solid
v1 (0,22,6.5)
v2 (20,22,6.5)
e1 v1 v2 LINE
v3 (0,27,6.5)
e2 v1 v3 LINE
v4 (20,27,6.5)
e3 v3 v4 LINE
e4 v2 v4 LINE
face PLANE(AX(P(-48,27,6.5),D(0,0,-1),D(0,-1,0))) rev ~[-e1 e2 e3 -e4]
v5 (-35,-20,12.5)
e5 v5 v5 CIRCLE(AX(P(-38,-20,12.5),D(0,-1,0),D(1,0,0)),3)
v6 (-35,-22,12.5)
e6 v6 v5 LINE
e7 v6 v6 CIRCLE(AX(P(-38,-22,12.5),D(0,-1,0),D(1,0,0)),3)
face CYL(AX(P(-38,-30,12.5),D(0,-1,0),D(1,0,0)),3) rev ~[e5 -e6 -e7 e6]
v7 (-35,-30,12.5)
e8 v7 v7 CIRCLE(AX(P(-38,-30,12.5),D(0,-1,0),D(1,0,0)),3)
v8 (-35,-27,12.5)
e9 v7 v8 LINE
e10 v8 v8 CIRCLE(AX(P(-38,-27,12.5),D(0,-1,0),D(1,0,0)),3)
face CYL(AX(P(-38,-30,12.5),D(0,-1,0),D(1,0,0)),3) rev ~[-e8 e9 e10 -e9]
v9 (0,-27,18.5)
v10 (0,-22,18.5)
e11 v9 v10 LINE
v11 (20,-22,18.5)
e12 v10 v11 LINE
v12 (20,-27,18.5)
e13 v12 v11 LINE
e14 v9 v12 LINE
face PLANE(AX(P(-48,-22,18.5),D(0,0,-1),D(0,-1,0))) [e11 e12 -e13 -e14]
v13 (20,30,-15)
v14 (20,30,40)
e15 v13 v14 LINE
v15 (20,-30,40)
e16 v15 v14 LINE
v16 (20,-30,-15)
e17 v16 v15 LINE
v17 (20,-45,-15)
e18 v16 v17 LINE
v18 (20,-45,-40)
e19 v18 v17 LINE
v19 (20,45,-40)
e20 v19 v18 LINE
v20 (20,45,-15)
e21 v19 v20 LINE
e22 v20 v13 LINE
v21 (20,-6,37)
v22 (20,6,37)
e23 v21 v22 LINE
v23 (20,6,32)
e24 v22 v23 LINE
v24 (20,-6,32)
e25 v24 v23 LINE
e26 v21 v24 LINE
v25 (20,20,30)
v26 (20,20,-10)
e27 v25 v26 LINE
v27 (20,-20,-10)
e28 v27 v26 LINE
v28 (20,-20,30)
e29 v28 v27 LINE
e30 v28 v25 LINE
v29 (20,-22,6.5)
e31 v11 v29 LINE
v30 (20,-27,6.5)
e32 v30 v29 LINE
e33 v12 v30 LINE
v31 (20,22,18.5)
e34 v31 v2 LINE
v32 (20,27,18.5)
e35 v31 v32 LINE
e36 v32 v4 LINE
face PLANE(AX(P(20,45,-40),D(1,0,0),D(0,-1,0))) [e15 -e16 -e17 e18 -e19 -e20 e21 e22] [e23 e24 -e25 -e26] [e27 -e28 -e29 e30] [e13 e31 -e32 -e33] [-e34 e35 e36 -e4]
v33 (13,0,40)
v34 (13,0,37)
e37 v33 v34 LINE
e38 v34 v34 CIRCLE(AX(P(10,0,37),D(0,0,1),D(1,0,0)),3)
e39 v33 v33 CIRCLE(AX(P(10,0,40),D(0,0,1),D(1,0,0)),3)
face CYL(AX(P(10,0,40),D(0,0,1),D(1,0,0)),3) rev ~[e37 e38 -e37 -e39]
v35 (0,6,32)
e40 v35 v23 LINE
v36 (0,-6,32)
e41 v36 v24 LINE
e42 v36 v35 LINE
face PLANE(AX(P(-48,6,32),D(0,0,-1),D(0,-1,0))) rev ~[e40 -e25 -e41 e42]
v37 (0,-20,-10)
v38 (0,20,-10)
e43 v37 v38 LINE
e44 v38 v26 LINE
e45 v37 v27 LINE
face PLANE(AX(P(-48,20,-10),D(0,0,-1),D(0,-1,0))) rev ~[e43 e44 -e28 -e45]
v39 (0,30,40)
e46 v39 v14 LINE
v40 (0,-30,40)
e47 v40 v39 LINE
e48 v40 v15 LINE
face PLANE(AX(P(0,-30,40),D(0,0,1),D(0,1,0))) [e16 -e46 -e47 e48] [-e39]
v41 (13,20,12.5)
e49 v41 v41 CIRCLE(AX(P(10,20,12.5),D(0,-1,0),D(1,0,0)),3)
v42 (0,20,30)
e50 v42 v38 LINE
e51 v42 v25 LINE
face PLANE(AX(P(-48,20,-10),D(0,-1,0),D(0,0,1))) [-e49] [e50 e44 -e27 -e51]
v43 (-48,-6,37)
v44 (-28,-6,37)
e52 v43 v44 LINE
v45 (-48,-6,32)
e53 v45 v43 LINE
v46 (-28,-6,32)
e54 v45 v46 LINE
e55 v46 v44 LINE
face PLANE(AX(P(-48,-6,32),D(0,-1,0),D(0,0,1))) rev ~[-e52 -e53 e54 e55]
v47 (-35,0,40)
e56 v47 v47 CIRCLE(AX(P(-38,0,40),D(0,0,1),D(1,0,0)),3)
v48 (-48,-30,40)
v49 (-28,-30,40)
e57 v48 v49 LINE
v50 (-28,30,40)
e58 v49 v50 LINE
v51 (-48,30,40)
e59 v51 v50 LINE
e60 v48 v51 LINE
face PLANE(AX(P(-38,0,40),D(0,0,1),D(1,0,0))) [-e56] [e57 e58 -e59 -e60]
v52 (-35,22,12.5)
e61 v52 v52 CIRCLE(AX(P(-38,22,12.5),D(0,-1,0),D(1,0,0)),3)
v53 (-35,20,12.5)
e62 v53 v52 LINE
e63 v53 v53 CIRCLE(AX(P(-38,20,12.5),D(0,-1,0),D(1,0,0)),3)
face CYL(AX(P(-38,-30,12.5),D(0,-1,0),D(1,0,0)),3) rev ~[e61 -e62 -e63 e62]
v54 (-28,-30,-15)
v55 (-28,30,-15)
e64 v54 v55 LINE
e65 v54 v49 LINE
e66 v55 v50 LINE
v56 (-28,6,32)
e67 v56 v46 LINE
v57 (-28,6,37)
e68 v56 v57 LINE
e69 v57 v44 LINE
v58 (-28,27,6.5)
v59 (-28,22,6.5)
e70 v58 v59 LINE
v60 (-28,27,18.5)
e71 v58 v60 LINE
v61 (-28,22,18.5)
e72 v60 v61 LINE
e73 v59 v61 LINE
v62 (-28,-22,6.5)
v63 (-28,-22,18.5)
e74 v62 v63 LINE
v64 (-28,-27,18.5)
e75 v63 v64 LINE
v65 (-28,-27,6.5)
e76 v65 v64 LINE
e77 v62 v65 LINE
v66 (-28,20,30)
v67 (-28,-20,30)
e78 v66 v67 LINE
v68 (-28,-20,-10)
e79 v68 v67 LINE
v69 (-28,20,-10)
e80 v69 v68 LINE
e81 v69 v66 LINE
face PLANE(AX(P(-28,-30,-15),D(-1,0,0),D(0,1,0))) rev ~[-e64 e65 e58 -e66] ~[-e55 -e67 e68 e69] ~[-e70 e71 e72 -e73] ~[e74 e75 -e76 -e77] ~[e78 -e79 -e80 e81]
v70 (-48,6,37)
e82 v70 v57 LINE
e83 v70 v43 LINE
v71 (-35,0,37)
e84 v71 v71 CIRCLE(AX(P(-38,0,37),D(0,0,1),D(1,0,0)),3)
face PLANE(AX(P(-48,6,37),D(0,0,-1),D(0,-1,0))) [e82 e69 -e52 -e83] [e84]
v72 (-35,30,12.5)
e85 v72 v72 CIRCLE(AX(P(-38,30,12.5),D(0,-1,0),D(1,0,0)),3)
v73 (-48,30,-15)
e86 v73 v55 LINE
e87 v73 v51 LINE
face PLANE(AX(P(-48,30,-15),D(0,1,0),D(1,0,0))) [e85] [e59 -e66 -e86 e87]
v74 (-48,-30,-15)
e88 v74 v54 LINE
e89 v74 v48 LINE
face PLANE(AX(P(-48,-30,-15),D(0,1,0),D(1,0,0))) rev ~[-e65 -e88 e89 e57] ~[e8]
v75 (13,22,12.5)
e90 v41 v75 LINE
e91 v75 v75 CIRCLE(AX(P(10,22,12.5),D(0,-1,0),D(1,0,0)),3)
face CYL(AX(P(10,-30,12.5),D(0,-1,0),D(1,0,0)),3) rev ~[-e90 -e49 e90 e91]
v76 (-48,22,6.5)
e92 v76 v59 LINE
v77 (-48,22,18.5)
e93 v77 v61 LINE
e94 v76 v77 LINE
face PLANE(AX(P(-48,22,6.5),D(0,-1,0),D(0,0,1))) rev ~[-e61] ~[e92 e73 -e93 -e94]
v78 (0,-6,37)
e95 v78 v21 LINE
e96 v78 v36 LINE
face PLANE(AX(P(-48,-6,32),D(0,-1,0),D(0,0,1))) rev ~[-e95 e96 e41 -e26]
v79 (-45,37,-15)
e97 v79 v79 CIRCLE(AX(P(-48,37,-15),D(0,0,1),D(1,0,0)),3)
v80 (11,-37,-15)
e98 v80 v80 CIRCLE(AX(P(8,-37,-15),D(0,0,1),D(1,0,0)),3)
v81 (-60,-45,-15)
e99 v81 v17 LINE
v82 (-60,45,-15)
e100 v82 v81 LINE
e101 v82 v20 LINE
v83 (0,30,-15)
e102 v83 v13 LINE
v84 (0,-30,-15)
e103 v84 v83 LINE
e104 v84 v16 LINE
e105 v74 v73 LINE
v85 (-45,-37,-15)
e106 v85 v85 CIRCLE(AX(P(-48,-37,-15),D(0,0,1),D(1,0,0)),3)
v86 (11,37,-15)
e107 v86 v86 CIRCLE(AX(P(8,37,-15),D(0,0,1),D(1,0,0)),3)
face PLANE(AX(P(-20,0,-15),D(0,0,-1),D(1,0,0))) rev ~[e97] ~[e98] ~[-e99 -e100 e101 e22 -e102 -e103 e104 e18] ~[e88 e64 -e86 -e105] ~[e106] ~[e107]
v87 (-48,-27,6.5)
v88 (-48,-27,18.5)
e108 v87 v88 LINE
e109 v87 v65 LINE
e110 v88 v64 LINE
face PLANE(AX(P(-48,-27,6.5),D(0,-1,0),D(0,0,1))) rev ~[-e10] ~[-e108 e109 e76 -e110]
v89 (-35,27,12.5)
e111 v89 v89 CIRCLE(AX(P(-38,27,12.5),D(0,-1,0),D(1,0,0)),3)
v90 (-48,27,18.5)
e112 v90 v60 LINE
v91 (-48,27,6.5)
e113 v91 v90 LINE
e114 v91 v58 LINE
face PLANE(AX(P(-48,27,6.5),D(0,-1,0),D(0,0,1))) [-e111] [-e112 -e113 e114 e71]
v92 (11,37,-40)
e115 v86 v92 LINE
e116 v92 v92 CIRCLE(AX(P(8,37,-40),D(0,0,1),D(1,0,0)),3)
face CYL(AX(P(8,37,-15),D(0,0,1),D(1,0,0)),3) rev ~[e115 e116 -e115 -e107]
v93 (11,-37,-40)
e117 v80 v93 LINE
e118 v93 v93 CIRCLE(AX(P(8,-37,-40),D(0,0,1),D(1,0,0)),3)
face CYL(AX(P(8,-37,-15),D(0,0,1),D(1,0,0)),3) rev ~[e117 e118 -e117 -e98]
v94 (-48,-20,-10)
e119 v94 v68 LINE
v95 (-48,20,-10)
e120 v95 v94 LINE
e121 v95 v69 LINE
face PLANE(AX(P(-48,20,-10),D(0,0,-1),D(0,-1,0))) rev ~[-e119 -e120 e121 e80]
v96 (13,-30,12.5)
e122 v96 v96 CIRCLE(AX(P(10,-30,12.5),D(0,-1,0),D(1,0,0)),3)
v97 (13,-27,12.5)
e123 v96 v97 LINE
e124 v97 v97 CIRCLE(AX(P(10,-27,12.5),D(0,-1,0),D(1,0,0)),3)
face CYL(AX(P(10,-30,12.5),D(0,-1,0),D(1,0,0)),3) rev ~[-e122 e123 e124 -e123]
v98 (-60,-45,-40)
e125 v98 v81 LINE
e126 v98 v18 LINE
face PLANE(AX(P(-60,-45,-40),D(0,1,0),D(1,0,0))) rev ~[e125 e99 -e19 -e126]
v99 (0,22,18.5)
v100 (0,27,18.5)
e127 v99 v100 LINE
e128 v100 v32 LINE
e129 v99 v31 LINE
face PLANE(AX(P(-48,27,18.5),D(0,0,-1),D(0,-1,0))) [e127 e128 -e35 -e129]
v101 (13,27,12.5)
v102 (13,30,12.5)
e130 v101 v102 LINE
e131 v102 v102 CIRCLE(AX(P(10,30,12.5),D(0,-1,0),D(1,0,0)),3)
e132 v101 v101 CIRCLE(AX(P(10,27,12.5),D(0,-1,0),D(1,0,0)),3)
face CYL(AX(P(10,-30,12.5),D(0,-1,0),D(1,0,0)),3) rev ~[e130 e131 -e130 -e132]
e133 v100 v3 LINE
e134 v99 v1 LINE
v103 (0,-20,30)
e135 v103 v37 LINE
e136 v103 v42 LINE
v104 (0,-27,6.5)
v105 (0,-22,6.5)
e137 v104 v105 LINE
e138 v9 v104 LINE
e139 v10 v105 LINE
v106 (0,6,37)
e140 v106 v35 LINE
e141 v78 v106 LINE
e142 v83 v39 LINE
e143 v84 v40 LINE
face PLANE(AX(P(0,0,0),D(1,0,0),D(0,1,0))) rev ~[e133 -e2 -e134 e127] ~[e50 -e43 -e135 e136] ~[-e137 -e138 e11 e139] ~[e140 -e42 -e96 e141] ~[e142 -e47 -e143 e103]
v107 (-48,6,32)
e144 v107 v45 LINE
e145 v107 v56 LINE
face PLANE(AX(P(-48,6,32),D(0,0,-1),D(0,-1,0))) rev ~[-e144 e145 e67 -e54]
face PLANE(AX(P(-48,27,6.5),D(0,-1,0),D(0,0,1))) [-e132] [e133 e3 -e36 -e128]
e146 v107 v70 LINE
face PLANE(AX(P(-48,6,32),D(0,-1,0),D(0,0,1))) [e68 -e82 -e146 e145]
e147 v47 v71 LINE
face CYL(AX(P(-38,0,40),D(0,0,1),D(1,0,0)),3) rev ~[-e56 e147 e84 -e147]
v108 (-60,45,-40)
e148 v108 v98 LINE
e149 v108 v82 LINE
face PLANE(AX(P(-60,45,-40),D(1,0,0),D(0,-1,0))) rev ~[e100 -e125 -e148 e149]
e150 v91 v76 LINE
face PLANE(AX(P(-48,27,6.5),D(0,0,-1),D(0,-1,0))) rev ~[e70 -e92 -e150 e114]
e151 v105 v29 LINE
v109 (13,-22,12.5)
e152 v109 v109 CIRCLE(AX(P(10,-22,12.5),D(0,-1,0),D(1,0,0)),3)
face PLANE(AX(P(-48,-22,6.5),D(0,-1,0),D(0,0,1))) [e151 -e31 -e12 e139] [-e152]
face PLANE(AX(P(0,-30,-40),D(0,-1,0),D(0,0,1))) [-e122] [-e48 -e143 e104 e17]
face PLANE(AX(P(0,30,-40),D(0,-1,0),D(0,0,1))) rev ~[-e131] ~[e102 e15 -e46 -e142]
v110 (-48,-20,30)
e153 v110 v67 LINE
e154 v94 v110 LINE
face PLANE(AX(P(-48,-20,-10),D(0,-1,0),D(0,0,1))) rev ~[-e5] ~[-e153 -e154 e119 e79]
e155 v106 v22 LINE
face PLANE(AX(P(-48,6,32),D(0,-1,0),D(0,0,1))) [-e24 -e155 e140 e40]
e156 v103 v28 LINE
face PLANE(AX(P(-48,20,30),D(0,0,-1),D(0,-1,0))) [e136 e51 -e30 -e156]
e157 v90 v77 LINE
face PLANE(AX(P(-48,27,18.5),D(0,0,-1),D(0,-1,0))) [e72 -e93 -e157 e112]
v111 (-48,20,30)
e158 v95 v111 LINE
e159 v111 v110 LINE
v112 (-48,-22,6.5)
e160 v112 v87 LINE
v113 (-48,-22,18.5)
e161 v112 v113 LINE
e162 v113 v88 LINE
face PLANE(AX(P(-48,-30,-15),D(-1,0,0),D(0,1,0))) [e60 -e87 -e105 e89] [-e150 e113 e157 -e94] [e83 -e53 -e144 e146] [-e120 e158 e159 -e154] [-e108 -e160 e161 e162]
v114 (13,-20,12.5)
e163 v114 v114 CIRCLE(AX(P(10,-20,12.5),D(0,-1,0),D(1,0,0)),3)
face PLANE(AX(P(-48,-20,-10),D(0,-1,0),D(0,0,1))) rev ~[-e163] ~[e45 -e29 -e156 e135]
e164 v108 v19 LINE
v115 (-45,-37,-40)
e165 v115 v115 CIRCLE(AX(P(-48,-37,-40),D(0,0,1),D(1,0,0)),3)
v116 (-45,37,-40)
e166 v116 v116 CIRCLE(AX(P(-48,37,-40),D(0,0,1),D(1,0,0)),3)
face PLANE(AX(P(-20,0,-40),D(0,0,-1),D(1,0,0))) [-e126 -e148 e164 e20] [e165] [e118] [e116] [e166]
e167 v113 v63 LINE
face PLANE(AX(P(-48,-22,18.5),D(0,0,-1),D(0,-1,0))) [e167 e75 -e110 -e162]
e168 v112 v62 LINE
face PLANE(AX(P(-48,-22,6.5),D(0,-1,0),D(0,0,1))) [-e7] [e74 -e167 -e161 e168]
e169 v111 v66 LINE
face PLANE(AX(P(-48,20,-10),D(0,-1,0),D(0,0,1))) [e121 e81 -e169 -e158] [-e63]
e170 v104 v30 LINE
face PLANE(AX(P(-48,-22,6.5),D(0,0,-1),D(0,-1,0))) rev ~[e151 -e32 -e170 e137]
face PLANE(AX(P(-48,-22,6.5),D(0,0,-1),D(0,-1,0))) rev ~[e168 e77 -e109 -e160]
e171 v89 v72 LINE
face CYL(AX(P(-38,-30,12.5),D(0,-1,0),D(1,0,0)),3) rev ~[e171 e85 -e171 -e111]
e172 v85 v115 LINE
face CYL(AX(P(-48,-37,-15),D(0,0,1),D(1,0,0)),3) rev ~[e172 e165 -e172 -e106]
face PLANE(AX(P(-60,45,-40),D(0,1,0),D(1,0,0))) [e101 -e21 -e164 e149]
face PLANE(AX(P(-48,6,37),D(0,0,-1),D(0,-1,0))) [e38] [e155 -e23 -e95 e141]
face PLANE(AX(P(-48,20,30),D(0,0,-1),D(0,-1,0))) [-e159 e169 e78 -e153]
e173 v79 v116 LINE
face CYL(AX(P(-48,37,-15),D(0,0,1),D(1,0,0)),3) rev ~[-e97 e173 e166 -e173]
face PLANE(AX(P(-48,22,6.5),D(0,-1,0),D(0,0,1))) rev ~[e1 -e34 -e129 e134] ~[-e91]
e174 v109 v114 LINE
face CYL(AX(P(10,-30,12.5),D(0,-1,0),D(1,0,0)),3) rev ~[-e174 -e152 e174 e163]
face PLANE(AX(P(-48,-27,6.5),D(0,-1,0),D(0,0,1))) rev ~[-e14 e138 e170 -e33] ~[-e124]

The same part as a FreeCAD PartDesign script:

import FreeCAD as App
import Part
import Sketcher

doc = App.newDocument("Part")
body = doc.addObject("PartDesign::Body", "Body")

sketch1 = body.newObject("Sketcher::SketchObject", "Sketch")
sketch1.AttachmentSupport = (doc.getObject("YZ_Plane"), [""])
sketch1.MapMode = "FlatFace"
sketch1.addGeometry([
    Part.LineSegment(App.Vector(-30, 40, 0), App.Vector(-30, -40, 0)),
    Part.LineSegment(App.Vector(-30, -40, 0), App.Vector(30, -40, 0)),
    Part.LineSegment(App.Vector(30, -40, 0), App.Vector(30, 40, 0)),
    Part.LineSegment(App.Vector(30, 40, 0), App.Vector(-30, 40, 0)),
], False)
sketch1.addConstraint([
    Sketcher.Constraint("Coincident", 0, 2, 1, 1),
    Sketcher.Constraint("Coincident", 1, 2, 2, 1),
    Sketcher.Constraint("Coincident", 2, 2, 3, 1),
    Sketcher.Constraint("Coincident", 3, 2, 0, 1),
    Sketcher.Constraint("Vertical", 0),
    Sketcher.Constraint("Horizontal", 1),
    Sketcher.Constraint("Vertical", 2),
    Sketcher.Constraint("Horizontal", 3),
    Sketcher.Constraint("Symmetric", 0, 2, 2, 2, -1, 1),
    Sketcher.Constraint("DistanceX", 1, 1, 1, 2, 60.0),
    Sketcher.Constraint("DistanceY", 0, 2, 0, 1, 80.0),
])
pad1 = body.newObject("PartDesign::Pad", "Pad")
pad1.Profile = sketch1
pad1.Length = 20

sketch2 = body.newObject("Sketcher::SketchObject", "Sketch001")
sketch2.AttachmentSupport = (doc.getObject("XY_Plane"), [""])
sketch2.MapMode = "FlatFace"
sketch2.AttachmentOffset = App.Placement(App.Vector(0, 0, -40), App.Rotation())
sketch2.addGeometry([
    Part.LineSegment(App.Vector(-60, -45, 0), App.Vector(-60, 45, 0)),
    Part.LineSegment(App.Vector(-60, 45, 0), App.Vector(20, 45, 0)),
    Part.LineSegment(App.Vector(20, 45, 0), App.Vector(20, -45, 0)),
    Part.LineSegment(App.Vector(20, -45, 0), App.Vector(-60, -45, 0)),
], False)
sketch2.addConstraint([
    Sketcher.Constraint("Coincident", 0, 2, 1, 1),
    Sketcher.Constraint("Coincident", 1, 2, 2, 1),
    Sketcher.Constraint("Coincident", 2, 2, 3, 1),
    Sketcher.Constraint("Coincident", 3, 2, 0, 1),
    Sketcher.Constraint("Vertical", 0),
    Sketcher.Constraint("Horizontal", 1),
    Sketcher.Constraint("Vertical", 2),
    Sketcher.Constraint("Horizontal", 3),
    Sketcher.Constraint("DistanceX", 1, 1, 1, 2, 80.0),
    Sketcher.Constraint("DistanceY", 0, 1, 0, 2, 90.0),
    Sketcher.Constraint("DistanceX", 0, 2, -1, 1, 60.0),
    Sketcher.Constraint("DistanceY", -1, 1, 0, 2, 45.0),
])
pad2 = body.newObject("PartDesign::Pad", "Pad001")
pad2.Profile = sketch2
pad2.Length = 25

sketch3 = body.newObject("Sketcher::SketchObject", "Sketch002")
sketch3.AttachmentSupport = (doc.getObject("XY_Plane"), [""])
sketch3.MapMode = "FlatFace"
sketch3.AttachmentOffset = App.Placement(App.Vector(0, 0, -15), App.Rotation())
sketch3.addGeometry([
    Part.Circle(App.Vector(-48, 37, 0), App.Vector(0, 0, 1), 3),
    Part.Circle(App.Vector(-48, -37, 0), App.Vector(0, 0, 1), 3),
    Part.Circle(App.Vector(8, -37, 0), App.Vector(0, 0, 1), 3),
    Part.Circle(App.Vector(8, 37, 0), App.Vector(0, 0, 1), 3),
], False)
sketch3.addConstraint([
    Sketcher.Constraint("Equal", 0, 1),
    Sketcher.Constraint("Equal", 1, 2),
    Sketcher.Constraint("Equal", 2, 3),
    Sketcher.Constraint("Symmetric", 0, 3, 1, 3, -1),
    Sketcher.Constraint("Symmetric", 2, 3, 3, 3, -1),
    Sketcher.Constraint("Horizontal", 1, 3, 2, 3),
    Sketcher.Constraint("Diameter", 0, 6.0),
    Sketcher.Constraint("DistanceX", 0, 3, -1, 1, 48.0),
    Sketcher.Constraint("DistanceY", -1, 1, 0, 3, 37.0),
    Sketcher.Constraint("DistanceX", -1, 1, 2, 3, 8.0),
])
pocket1 = body.newObject("PartDesign::Pocket", "Pocket")
pocket1.Profile = sketch3
pocket1.Type = "ThroughAll"

sketch4 = body.newObject("Sketcher::SketchObject", "Sketch003")
sketch4.AttachmentSupport = (doc.getObject("XY_Plane"), [""])
sketch4.MapMode = "FlatFace"
sketch4.AttachmentOffset = App.Placement(App.Vector(0, 0, -15), App.Rotation())
sketch4.addGeometry([
    Part.LineSegment(App.Vector(-48, 30, 0), App.Vector(-48, -30, 0)),
    Part.LineSegment(App.Vector(-48, -30, 0), App.Vector(-28, -30, 0)),
    Part.LineSegment(App.Vector(-28, -30, 0), App.Vector(-28, 30, 0)),
    Part.LineSegment(App.Vector(-28, 30, 0), App.Vector(-48, 30, 0)),
], False)
sketch4.addConstraint([
    Sketcher.Constraint("Coincident", 0, 2, 1, 1),
    Sketcher.Constraint("Coincident", 1, 2, 2, 1),
    Sketcher.Constraint("Coincident", 2, 2, 3, 1),
    Sketcher.Constraint("Coincident", 3, 2, 0, 1),
    Sketcher.Constraint("Vertical", 0),
    Sketcher.Constraint("Horizontal", 1),
    Sketcher.Constraint("Vertical", 2),
    Sketcher.Constraint("Horizontal", 3),
    Sketcher.Constraint("DistanceX", 1, 1, 1, 2, 20.0),
    Sketcher.Constraint("DistanceY", 0, 2, 0, 1, 60.0),
    Sketcher.Constraint("DistanceX", 0, 2, -1, 1, 48.0),
    Sketcher.Constraint("DistanceY", 0, 2, -1, 1, 30.0),
])
pad3 = body.newObject("PartDesign::Pad", "Pad002")
pad3.Profile = sketch4
pad3.Length = 55

sketch5 = body.newObject("Sketcher::SketchObject", "Sketch004")
sketch5.AttachmentSupport = (doc.getObject("YZ_Plane"), [""])
sketch5.MapMode = "FlatFace"
sketch5.AttachmentOffset = App.Placement(App.Vector(0, 0, -48), App.Rotation())
sketch5.addGeometry([
    Part.LineSegment(App.Vector(20, 30, 0), App.Vector(20, -10, 0)),
    Part.LineSegment(App.Vector(20, -10, 0), App.Vector(-20, -10, 0)),
    Part.LineSegment(App.Vector(-20, -10, 0), App.Vector(-20, 30, 0)),
    Part.LineSegment(App.Vector(-20, 30, 0), App.Vector(20, 30, 0)),
    Part.LineSegment(App.Vector(27, 18, 0), App.Vector(27, 6, 0)),
    Part.LineSegment(App.Vector(27, 6, 0), App.Vector(22, 6, 0)),
    Part.LineSegment(App.Vector(22, 6, 0), App.Vector(22, 18, 0)),
    Part.LineSegment(App.Vector(22, 18, 0), App.Vector(27, 18, 0)),
    Part.LineSegment(App.Vector(6, 37, 0), App.Vector(6, 32, 0)),
    Part.LineSegment(App.Vector(6, 32, 0), App.Vector(-6, 32, 0)),
    Part.LineSegment(App.Vector(-6, 32, 0), App.Vector(-6, 37, 0)),
    Part.LineSegment(App.Vector(-6, 37, 0), App.Vector(6, 37, 0)),
    Part.LineSegment(App.Vector(-22, 18, 0), App.Vector(-22, 6, 0)),
    Part.LineSegment(App.Vector(-22, 6, 0), App.Vector(-27, 6, 0)),
    Part.LineSegment(App.Vector(-27, 6, 0), App.Vector(-27, 18, 0)),
    Part.LineSegment(App.Vector(-27, 18, 0), App.Vector(-22, 18, 0)),
], False)
sketch5.addConstraint([
    Sketcher.Constraint("Coincident", 0, 2, 1, 1),
    Sketcher.Constraint("Coincident", 1, 2, 2, 1),
    Sketcher.Constraint("Coincident", 2, 2, 3, 1),
    Sketcher.Constraint("Coincident", 3, 2, 0, 1),
    Sketcher.Constraint("Coincident", 4, 2, 5, 1),
    Sketcher.Constraint("Coincident", 5, 2, 6, 1),
    Sketcher.Constraint("Coincident", 6, 2, 7, 1),
    Sketcher.Constraint("Coincident", 7, 2, 4, 1),
    Sketcher.Constraint("Coincident", 8, 2, 9, 1),
    Sketcher.Constraint("Coincident", 9, 2, 10, 1),
    Sketcher.Constraint("Coincident", 10, 2, 11, 1),
    Sketcher.Constraint("Coincident", 11, 2, 8, 1),
    Sketcher.Constraint("Coincident", 12, 2, 13, 1),
    Sketcher.Constraint("Coincident", 13, 2, 14, 1),
    Sketcher.Constraint("Coincident", 14, 2, 15, 1),
    Sketcher.Constraint("Coincident", 15, 2, 12, 1),
    Sketcher.Constraint("Vertical", 0),
    Sketcher.Constraint("Horizontal", 1),
    Sketcher.Constraint("Vertical", 2),
    Sketcher.Constraint("Horizontal", 3),
    Sketcher.Constraint("Vertical", 4),
    Sketcher.Constraint("Horizontal", 5),
    Sketcher.Constraint("Vertical", 6),
    Sketcher.Constraint("Horizontal", 7),
    Sketcher.Constraint("Vertical", 8),
    Sketcher.Constraint("Horizontal", 9),
    Sketcher.Constraint("Vertical", 10),
    Sketcher.Constraint("Horizontal", 11),
    Sketcher.Constraint("Vertical", 12),
    Sketcher.Constraint("Horizontal", 13),
    Sketcher.Constraint("Vertical", 14),
    Sketcher.Constraint("Horizontal", 15),
    Sketcher.Constraint("Symmetric", 5, 2, 12, 2, -2),
    Sketcher.Constraint("Symmetric", 7, 2, 14, 2, -2),
    Sketcher.Constraint("Equal", 3, 0),
    Sketcher.Constraint("Equal", 11, 4),
    Sketcher.Constraint("Equal", 15, 8),
    Sketcher.Constraint("DistanceX", 1, 2, 1, 1, 40.0),
    Sketcher.Constraint("DistanceX", 5, 2, 5, 1, 5.0),
    Sketcher.Constraint("DistanceX", 9, 2, 9, 1, 12.0),
    Sketcher.Constraint("DistanceX", -1, 1, 0, 2, 20.0),
    Sketcher.Constraint("DistanceY", 0, 2, -1, 1, 10.0),
    Sketcher.Constraint("DistanceX", -1, 1, 4, 2, 27.0),
    Sketcher.Constraint("DistanceX", -1, 1, 8, 2, 6.0),
    Sketcher.Constraint("DistanceY", -1, 1, 8, 2, 32.0),
    Sketcher.Constraint("DistanceY", -1, 1, 4, 2, 6.5),
])
pocket2 = body.newObject("PartDesign::Pocket", "Pocket001")
pocket2.Profile = sketch5
pocket2.Type = "ThroughAll"
pocket2.Reversed = True

sketch6 = body.newObject("Sketcher::SketchObject", "Sketch005")
sketch6.AttachmentSupport = (doc.getObject("XZ_Plane"), [""])
sketch6.MapMode = "FlatFace"
sketch6.AttachmentOffset = App.Placement(App.Vector(0, 0, 30), App.Rotation())
sketch6.addGeometry([
    Part.Circle(App.Vector(-38, 12.5, 0), App.Vector(0, 0, 1), 3),
    Part.Circle(App.Vector(10, 12.5, 0), App.Vector(0, 0, 1), 3),
], False)
sketch6.addConstraint([
    Sketcher.Constraint("Equal", 0, 1),
    Sketcher.Constraint("Horizontal", 0, 3, 1, 3),
    Sketcher.Constraint("Diameter", 0, 6.0),
    Sketcher.Constraint("DistanceX", 0, 3, -1, 1, 38.0),
    Sketcher.Constraint("DistanceX", -1, 1, 1, 3, 10.0),
    Sketcher.Constraint("DistanceY", -1, 1, 0, 3, 12.5),
])
pocket3 = body.newObject("PartDesign::Pocket", "Pocket002")
pocket3.Profile = sketch6
pocket3.Type = "ThroughAll"

sketch7 = body.newObject("Sketcher::SketchObject", "Sketch006")
sketch7.AttachmentSupport = (doc.getObject("XY_Plane"), [""])
sketch7.MapMode = "FlatFace"
sketch7.AttachmentOffset = App.Placement(App.Vector(0, 0, 40), App.Rotation())
sketch7.addGeometry([
    Part.Circle(App.Vector(-38, 0, 0), App.Vector(0, 0, 1), 3),
    Part.Circle(App.Vector(10, 0, 0), App.Vector(0, 0, 1), 3),
], False)
sketch7.addConstraint([
    Sketcher.Constraint("Equal", 0, 1),
    Sketcher.Constraint("PointOnObject", 0, 3, -1),
    Sketcher.Constraint("PointOnObject", 1, 3, -1),
    Sketcher.Constraint("Diameter", 0, 6.0),
    Sketcher.Constraint("DistanceX", 0, 3, -1, 1, 38.0),
    Sketcher.Constraint("DistanceX", -1, 1, 1, 3, 10.0),
])
pocket4 = body.newObject("PartDesign::Pocket", "Pocket003")
pocket4.Profile = sketch7
pocket4.Length = 3

doc.recompute()
